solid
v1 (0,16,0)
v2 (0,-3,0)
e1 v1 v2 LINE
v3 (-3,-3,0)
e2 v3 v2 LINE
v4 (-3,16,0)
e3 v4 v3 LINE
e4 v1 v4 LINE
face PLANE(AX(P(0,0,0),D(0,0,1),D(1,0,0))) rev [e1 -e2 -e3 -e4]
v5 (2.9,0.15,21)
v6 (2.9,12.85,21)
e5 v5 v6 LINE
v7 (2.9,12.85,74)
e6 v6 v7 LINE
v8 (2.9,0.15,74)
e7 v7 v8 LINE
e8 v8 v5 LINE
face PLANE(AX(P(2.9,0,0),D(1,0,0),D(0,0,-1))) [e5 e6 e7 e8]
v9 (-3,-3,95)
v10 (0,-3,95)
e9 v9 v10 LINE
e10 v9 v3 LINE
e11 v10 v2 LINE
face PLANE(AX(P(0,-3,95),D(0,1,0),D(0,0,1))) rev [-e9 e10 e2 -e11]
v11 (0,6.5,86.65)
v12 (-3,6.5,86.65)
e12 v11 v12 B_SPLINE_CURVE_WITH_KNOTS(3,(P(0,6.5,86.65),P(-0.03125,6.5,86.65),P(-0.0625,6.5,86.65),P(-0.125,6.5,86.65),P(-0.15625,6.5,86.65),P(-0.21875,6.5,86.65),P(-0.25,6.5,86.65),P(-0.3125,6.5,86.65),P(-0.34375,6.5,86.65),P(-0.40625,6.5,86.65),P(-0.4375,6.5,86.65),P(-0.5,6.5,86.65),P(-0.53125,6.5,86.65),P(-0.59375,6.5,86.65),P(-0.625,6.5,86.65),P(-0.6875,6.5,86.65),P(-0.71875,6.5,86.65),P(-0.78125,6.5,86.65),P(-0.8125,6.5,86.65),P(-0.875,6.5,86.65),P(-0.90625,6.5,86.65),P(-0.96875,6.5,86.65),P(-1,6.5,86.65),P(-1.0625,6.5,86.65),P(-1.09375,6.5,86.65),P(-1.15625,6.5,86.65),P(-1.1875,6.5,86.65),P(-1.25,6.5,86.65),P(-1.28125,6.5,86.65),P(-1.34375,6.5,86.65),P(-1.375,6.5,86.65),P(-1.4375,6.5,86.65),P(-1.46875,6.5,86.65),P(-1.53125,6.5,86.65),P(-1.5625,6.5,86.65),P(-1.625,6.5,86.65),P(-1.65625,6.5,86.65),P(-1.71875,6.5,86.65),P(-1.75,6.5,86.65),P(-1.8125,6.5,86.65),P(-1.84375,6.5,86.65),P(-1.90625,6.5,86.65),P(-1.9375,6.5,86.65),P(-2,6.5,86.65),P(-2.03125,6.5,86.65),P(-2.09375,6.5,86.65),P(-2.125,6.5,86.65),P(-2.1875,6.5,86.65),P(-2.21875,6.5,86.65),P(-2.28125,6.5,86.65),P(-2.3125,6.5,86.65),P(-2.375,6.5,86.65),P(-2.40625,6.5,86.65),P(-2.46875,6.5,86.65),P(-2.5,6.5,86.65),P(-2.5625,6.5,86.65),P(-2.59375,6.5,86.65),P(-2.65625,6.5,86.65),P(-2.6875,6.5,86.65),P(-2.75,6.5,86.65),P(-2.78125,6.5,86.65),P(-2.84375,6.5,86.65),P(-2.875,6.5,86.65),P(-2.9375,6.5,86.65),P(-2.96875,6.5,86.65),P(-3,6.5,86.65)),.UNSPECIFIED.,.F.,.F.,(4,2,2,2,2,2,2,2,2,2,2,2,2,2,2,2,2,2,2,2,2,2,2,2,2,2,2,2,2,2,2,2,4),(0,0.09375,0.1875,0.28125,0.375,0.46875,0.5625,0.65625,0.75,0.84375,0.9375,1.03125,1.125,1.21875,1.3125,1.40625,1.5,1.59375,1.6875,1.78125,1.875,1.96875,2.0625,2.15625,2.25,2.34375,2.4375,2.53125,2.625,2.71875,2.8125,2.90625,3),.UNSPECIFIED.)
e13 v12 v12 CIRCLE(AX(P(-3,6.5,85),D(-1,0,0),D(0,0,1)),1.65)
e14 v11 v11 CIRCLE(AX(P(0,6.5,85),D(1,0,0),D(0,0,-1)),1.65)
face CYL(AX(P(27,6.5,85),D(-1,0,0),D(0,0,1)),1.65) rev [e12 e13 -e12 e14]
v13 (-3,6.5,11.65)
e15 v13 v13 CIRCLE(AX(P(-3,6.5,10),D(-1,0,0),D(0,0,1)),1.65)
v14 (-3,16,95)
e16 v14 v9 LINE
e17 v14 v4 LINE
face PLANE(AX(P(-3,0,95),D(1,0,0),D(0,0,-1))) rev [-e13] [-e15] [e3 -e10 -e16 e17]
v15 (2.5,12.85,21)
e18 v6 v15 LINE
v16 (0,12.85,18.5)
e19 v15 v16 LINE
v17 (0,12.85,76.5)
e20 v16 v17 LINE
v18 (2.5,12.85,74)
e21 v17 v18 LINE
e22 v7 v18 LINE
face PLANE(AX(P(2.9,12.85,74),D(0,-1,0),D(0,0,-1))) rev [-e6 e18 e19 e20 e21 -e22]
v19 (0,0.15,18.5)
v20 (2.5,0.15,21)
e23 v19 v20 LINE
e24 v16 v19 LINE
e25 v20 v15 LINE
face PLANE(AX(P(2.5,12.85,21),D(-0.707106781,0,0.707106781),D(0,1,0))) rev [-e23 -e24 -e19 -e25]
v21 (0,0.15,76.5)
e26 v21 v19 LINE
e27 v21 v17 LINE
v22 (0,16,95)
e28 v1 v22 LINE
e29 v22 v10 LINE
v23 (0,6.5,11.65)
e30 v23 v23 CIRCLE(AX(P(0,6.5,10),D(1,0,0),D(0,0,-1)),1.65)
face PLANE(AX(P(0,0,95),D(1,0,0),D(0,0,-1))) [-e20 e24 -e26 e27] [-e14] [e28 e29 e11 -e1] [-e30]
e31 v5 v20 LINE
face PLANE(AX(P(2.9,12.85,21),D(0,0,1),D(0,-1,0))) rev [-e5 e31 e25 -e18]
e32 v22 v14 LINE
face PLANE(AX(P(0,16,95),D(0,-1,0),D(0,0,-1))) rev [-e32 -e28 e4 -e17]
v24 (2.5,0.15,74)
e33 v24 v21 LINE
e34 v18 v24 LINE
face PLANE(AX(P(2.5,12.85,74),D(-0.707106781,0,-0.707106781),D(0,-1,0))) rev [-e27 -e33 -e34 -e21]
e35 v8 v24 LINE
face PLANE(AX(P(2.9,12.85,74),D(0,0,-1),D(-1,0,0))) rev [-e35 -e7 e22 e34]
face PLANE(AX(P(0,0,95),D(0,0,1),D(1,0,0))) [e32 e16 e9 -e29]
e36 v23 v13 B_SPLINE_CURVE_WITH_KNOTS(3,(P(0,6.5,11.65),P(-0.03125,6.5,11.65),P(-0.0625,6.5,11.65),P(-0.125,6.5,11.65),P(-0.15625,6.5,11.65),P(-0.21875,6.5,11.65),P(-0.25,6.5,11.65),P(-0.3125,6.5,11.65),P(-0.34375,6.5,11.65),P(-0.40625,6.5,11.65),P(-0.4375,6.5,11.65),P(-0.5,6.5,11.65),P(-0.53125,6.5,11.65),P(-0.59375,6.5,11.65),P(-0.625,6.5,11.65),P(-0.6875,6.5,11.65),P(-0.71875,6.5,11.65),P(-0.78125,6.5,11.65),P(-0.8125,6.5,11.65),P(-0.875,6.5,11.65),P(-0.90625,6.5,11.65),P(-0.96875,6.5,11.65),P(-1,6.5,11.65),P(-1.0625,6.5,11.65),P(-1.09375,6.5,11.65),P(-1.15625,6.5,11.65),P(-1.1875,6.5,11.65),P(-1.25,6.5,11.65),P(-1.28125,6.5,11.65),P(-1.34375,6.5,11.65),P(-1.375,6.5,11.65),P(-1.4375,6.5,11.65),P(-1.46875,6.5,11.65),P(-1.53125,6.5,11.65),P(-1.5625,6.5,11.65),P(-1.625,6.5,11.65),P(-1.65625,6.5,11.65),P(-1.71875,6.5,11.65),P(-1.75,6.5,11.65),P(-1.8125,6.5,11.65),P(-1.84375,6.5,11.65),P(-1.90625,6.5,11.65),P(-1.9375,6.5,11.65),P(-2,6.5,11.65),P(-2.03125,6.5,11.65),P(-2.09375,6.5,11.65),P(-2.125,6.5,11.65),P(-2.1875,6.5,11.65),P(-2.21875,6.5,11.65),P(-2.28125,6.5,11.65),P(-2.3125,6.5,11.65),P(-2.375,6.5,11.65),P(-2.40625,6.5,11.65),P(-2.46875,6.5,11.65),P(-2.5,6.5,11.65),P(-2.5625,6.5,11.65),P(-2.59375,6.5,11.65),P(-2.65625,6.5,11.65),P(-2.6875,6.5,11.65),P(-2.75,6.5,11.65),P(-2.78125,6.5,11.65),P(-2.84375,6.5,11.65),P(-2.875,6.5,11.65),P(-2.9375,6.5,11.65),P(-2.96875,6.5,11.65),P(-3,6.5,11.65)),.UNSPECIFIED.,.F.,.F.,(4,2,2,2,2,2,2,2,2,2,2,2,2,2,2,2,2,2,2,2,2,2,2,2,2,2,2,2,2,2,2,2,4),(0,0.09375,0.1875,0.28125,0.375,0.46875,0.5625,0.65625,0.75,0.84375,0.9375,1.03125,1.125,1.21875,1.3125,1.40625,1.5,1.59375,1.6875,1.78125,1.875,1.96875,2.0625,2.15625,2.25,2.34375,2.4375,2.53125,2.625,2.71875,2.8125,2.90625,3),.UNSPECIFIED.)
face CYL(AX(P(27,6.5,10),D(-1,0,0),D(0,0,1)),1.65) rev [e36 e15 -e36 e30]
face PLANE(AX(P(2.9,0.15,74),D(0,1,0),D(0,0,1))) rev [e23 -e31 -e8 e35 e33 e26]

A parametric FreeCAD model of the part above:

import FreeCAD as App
import Part
import Sketcher
from FreeCAD import Vector
Q = App.Units.Quantity


def edges_at(feature, points):
    """Names of the edges that pass closest to the given points."""
    edges = feature.Shape.Edges
    near = lambda p: min(range(len(edges)), key=lambda i: edges[i].distToShape(Part.Vertex(*p))[0])
    return sorted({f"Edge{near(p) + 1}" for p in points})

doc = App.newDocument("Part")
params = doc.addObject("Spreadsheet::Sheet", "Params")
for row, (alias, value) in enumerate([
    ("sketch1_width", "19 mm"),
    ("sketch1_width2", "13 mm"),
    ("pad1_length", "95 mm"),
    ("sketch2_diameter", "3.3 mm"),
    ("pocket1_length", "30 mm"),
    ("sketch3_width", "19 mm"),
    ("sketch3_height", "95 mm"),
    ("pocket2_length", "16 mm"),
    ("sketch4_height", "53 mm"),
    ("sketch4_width", "12.7 mm"),
    ("pad2_length", "2.9 mm"),
    ("chamfer_size", "2.5 mm"),
], start=1):
    params.set(f"A{row}", alias)
    params.set(f"B{row}", "=" + value)
    params.setAlias(f"B{row}", alias)

body = doc.addObject("PartDesign::Body", "Body")

sketch1 = body.newObject("Sketcher::SketchObject", "Sketch")
sketch1.AttachmentSupport = (doc.getObject("XY_Plane"), [""])
sketch1.MapMode = "FlatFace"
sketch1.addGeometry(Part.LineSegment(Vector(-3, 16, 0), Vector(-3, -3, 0)), False)
sketch1.addGeometry(Part.LineSegment(Vector(-3, -3, 0), Vector(16, -3, 0)), False)
sketch1.addGeometry(Part.LineSegment(Vector(16, -3, 0), Vector(16, 16, 0)), False)
sketch1.addGeometry(Part.LineSegment(Vector(16, 16, 0), Vector(-3, 16, 0)), False)
sketch1.addGeometry(Part.LineSegment(Vector(13, 0, 0), Vector(0, 0, 0)), False)
sketch1.addGeometry(Part.LineSegment(Vector(0, 0, 0), Vector(0, 13, 0)), False)
sketch1.addGeometry(Part.LineSegment(Vector(0, 13, 0), Vector(13, 13, 0)), False)
sketch1.addGeometry(Part.LineSegment(Vector(13, 13, 0), Vector(13, 0, 0)), False)
sketch1.addConstraint(Sketcher.Constraint("Coincident", 0, 2, 1, 1))
sketch1.addConstraint(Sketcher.Constraint("Coincident", 1, 2, 2, 1))
sketch1.addConstraint(Sketcher.Constraint("Coincident", 2, 2, 3, 1))
sketch1.addConstraint(Sketcher.Constraint("Coincident", 3, 2, 0, 1))
sketch1.addConstraint(Sketcher.Constraint("Coincident", 4, 2, 5, 1))
sketch1.addConstraint(Sketcher.Constraint("Coincident", 5, 2, 6, 1))
sketch1.addConstraint(Sketcher.Constraint("Coincident", 6, 2, 7, 1))
sketch1.addConstraint(Sketcher.Constraint("Coincident", 7, 2, 4, 1))
sketch1.addConstraint(Sketcher.Constraint("Vertical", 0))
sketch1.addConstraint(Sketcher.Constraint("Horizontal", 1))
sketch1.addConstraint(Sketcher.Constraint("Vertical", 2))
sketch1.addConstraint(Sketcher.Constraint("Horizontal", 3))
sketch1.addConstraint(Sketcher.Constraint("Horizontal", 4))
sketch1.addConstraint(Sketcher.Constraint("Vertical", 5))
sketch1.addConstraint(Sketcher.Constraint("Horizontal", 6))
sketch1.addConstraint(Sketcher.Constraint("Vertical", 7))
sketch1.addConstraint(Sketcher.Constraint("Coincident", 4, 2, -1, 1))
sketch1.addConstraint(Sketcher.Constraint("Equal", 3, 0))
sketch1.addConstraint(Sketcher.Constraint("Equal", 6, 5))
sketch1.addConstraint(Sketcher.Constraint("DistanceX", 1, 1, 1, 2, Q("19 mm")))
sketch1.addConstraint(Sketcher.Constraint("DistanceX", 4, 2, 4, 1, Q("13 mm")))
sketch1.addConstraint(Sketcher.Constraint("DistanceX", 0, 2, -1, 1, Q("3 mm")))
sketch1.addConstraint(Sketcher.Constraint("DistanceY", 0, 2, -1, 1, Q("3 mm")))
sketch1.setExpression("Constraints[19]", "Params.sketch1_width")
sketch1.setExpression("Constraints[20]", "Params.sketch1_width2")
pad1 = body.newObject("PartDesign::Pad", "Pad")
pad1.Profile = sketch1
pad1.setExpression("Length", "Params.pad1_length")

sketch2 = body.newObject("Sketcher::SketchObject", "Sketch001")
sketch2.AttachmentSupport = (doc.getObject("YZ_Plane"), [""])
sketch2.MapMode = "FlatFace"
sketch2.AttachmentOffset = App.Placement(Vector(0, 0, -3), App.Rotation())
sketch2.addGeometry(Part.Circle(Vector(6.5, 10, 0), Vector(0, 0, 1), 1.6), False)
sketch2.addGeometry(Part.Circle(Vector(6.5, 85, 0), Vector(0, 0, 1), 1.6), False)
sketch2.addConstraint(Sketcher.Constraint("Equal", 0, 1))
sketch2.addConstraint(Sketcher.Constraint("Vertical", 0, 3, 1, 3))
sketch2.addConstraint(Sketcher.Constraint("Diameter", 0, Q("3.3 mm")))
sketch2.addConstraint(Sketcher.Constraint("DistanceY", -1, 1, 0, 3, Q("10 mm")))
sketch2.addConstraint(Sketcher.Constraint("DistanceY", -1, 1, 1, 3, Q("85 mm")))
sketch2.addConstraint(Sketcher.Constraint("DistanceX", -1, 1, 0, 3, Q("6.5 mm")))
sketch2.setExpression("Constraints[2]", "Params.sketch2_diameter")
pocket1 = body.newObject("PartDesign::Pocket", "Pocket")
pocket1.Profile = sketch2
pocket1.setExpression("Length", "Params.pocket1_length")
pocket1.Reversed = True

sketch3 = body.newObject("Sketcher::SketchObject", "Sketch002")
sketch3.AttachmentSupport = (doc.getObject("YZ_Plane"), [""])
sketch3.MapMode = "FlatFace"
sketch3.AttachmentOffset = App.Placement(Vector(0, 0, 16), App.Rotation())
sketch3.addGeometry(Part.LineSegment(Vector(16, 95, 0), Vector(-3, 95, 0)), False)
sketch3.addGeometry(Part.LineSegment(Vector(-3, 95, 0), Vector(-3, 0, 0)), False)
sketch3.addGeometry(Part.LineSegment(Vector(-3, 0, 0), Vector(16, 0, 0)), False)
sketch3.addGeometry(Part.LineSegment(Vector(16, 0, 0), Vector(16, 95, 0)), False)
sketch3.addConstraint(Sketcher.Constraint("Coincident", 0, 2, 1, 1))
sketch3.addConstraint(Sketcher.Constraint("Coincident", 1, 2, 2, 1))
sketch3.addConstraint(Sketcher.Constraint("Coincident", 2, 2, 3, 1))
sketch3.addConstraint(Sketcher.Constraint("Coincident", 3, 2, 0, 1))
sketch3.addConstraint(Sketcher.Constraint("Horizontal", 0))
sketch3.addConstraint(Sketcher.Constraint("Vertical", 1))
sketch3.addConstraint(Sketcher.Constraint("Horizontal", 2))
sketch3.addConstraint(Sketcher.Constraint("Vertical", 3))
sketch3.addConstraint(Sketcher.Constraint("PointOnObject", 1, 2, -1))
sketch3.addConstraint(Sketcher.Constraint("DistanceX", 0, 2, 0, 1, Q("19 mm")))
sketch3.addConstraint(Sketcher.Constraint("DistanceY", 1, 2, 1, 1, Q("95 mm")))
sketch3.addConstraint(Sketcher.Constraint("DistanceX", 0, 2, -1, 1, Q("3 mm")))
sketch3.setExpression("Constraints[9]", "Params.sketch3_width")
sketch3.setExpression("Constraints[10]", "Params.sketch3_height")
pocket2 = body.newObject("PartDesign::Pocket", "Pocket001")
pocket2.Profile = sketch3
pocket2.setExpression("Length", "Params.pocket2_length")

sketch4 = body.newObject("Sketcher::SketchObject", "Sketch003")
sketch4.AttachmentSupport = (doc.getObject("YZ_Plane"), [""])
sketch4.MapMode = "FlatFace"
sketch4.addGeometry(Part.LineSegment(Vector(13, 74, 0), Vector(0, 74, 0)), False)
sketch4.addGeometry(Part.LineSegment(Vector(0, 74, 0), Vector(0, 21, 0)), False)
sketch4.addGeometry(Part.LineSegment(Vector(0, 21, 0), Vector(13, 21, 0)), False)
sketch4.addGeometry(Part.LineSegment(Vector(13, 21, 0), Vector(13, 74, 0)), False)
sketch4.addConstraint(Sketcher.Constraint("Coincident", 0, 2, 1, 1))
sketch4.addConstraint(Sketcher.Constraint("Coincident", 1, 2, 2, 1))
sketch4.addConstraint(Sketcher.Constraint("Coincident", 2, 2, 3, 1))
sketch4.addConstraint(Sketcher.Constraint("Coincident", 3, 2, 0, 1))
sketch4.addConstraint(Sketcher.Constraint("Horizontal", 0))
sketch4.addConstraint(Sketcher.Constraint("Vertical", 1))
sketch4.addConstraint(Sketcher.Constraint("Horizontal", 2))
sketch4.addConstraint(Sketcher.Constraint("Vertical", 3))
sketch4.addConstraint(Sketcher.Constraint("DistanceY", 1, 2, 1, 1, Q("53 mm")))
sketch4.addConstraint(Sketcher.Constraint("DistanceX", 0, 2, 0, 1, Q("12.7 mm")))
sketch4.addConstraint(Sketcher.Constraint("DistanceY", -1, 1, 0, 2, Q("74 mm")))
sketch4.addConstraint(Sketcher.Constraint("DistanceX", -1, 1, 0, 2, Q("0.15 mm")))
sketch4.setExpression("Constraints[8]", "Params.sketch4_height")
sketch4.setExpression("Constraints[9]", "Params.sketch4_width")
pad2 = body.newObject("PartDesign::Pad", "Pad001")
pad2.Profile = sketch4
pad2.setExpression("Length", "Params.pad2_length")
doc.recompute()

chamfer = body.newObject("PartDesign::Chamfer", "Chamfer")
chamfer.Base = (pad2, edges_at(pad2, [(0, 6.5, 74), (0, 6.5, 21)]))
chamfer.setExpression("Size", "Params.chamfer_size")

doc.recompute()
